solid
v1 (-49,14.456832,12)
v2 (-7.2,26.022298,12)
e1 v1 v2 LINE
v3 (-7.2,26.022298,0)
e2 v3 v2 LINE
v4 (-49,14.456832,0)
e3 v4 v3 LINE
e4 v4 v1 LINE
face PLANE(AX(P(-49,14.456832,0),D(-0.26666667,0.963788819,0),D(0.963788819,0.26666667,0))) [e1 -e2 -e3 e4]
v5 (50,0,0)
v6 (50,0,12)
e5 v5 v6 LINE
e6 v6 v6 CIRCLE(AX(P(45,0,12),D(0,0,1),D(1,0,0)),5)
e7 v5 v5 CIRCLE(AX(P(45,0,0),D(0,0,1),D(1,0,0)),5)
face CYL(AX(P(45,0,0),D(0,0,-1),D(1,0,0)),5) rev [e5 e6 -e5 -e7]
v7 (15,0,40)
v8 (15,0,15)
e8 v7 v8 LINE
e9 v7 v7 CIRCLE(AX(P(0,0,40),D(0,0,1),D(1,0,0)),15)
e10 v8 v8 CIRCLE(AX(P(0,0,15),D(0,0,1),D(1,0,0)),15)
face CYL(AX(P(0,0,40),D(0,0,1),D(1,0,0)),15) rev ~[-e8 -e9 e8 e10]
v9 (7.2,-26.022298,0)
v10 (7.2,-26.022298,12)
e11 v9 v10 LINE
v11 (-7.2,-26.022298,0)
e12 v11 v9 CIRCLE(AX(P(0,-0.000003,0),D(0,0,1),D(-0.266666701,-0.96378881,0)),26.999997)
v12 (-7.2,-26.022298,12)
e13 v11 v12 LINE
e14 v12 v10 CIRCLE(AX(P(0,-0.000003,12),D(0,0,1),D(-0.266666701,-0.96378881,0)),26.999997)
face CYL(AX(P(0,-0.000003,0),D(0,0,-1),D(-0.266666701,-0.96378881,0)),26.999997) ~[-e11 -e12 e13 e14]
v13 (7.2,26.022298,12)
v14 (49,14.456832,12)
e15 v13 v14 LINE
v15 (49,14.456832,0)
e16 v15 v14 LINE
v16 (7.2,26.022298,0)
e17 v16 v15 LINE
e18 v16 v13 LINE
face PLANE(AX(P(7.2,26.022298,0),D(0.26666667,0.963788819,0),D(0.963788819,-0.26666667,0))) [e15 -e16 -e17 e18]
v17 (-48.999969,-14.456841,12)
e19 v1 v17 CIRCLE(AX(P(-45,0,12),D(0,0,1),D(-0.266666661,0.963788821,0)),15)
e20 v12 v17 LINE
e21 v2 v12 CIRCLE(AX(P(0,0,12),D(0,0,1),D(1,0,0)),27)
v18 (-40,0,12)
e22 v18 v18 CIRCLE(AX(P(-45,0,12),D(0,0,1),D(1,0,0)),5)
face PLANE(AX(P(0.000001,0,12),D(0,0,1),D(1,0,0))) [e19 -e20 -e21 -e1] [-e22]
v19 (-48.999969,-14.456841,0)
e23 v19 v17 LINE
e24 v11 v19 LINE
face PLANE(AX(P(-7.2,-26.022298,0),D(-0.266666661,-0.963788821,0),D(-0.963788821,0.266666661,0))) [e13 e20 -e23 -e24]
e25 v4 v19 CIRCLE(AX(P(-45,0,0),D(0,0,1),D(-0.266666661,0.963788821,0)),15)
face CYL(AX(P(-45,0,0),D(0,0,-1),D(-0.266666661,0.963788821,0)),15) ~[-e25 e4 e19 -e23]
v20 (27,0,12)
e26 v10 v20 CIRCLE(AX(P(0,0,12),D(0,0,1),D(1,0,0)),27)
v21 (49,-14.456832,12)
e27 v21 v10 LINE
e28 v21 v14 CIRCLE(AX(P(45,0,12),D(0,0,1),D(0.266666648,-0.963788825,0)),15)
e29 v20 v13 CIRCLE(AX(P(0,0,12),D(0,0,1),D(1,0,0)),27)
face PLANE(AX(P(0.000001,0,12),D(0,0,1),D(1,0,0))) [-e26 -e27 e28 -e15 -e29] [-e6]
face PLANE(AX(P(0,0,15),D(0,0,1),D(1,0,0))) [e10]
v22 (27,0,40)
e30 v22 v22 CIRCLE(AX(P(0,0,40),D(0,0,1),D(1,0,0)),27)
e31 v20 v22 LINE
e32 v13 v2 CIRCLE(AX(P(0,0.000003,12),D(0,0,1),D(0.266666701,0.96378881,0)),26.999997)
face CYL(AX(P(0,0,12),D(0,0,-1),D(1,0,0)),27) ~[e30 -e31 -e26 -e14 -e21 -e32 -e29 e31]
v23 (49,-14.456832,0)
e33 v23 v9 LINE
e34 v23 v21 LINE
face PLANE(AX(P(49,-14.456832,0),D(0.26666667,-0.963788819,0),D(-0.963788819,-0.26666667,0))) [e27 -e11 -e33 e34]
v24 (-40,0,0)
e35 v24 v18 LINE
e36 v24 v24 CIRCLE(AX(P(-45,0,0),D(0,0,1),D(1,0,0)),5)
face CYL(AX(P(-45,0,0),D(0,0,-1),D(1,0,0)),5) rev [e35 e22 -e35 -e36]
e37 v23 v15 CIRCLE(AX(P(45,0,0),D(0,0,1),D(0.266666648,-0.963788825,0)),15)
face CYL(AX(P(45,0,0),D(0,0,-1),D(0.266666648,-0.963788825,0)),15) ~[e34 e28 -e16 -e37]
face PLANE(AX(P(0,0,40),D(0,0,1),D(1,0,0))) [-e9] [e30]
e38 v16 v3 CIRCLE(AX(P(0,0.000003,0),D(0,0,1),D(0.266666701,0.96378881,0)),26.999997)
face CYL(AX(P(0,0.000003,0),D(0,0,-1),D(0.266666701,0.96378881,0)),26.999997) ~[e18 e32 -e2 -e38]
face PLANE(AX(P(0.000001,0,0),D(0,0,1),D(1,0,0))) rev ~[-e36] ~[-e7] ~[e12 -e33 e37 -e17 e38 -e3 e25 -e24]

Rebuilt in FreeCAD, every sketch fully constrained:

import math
import FreeCAD as App
import Part
import Sketcher
Q = App.Units.Quantity

doc = App.newDocument("Part")
body = doc.addObject("PartDesign::Body", "Body")

# Sketch on XY plane
sketch1 = doc.addObject("Sketcher::SketchObject", "Sketch")
body.addObject(sketch1)
sketch1.AttachmentSupport = (doc.XY_Plane, [""])
sketch1.MapMode = "FlatFace"
sketch1.addGeometry([
    Part.ArcOfCircle(Part.Circle(App.Vector(0, 0, 0), App.Vector(0, 0, 1), 27), math.radians(75), math.radians(105)),  # 0
    Part.LineSegment(App.Vector(-7, 26, 0), App.Vector(-49, 14, 0)),  # 1
    Part.ArcOfCircle(Part.Circle(App.Vector(-45, 0, 0), App.Vector(0, 0, 1), 15), math.radians(105), math.radians(255)),  # 2
    Part.LineSegment(App.Vector(-49, -14, 0), App.Vector(-7, -26, 0)),  # 3
    Part.ArcOfCircle(Part.Circle(App.Vector(0, 0, 0), App.Vector(0, 0, 1), 27), math.radians(-105), math.radians(-75)),  # 4
    Part.LineSegment(App.Vector(7, -26, 0), App.Vector(49, -14, 0)),  # 5
    Part.ArcOfCircle(Part.Circle(App.Vector(45, 0, 0), App.Vector(0, 0, 1), 15), math.radians(-75), math.radians(75)),  # 6
    Part.LineSegment(App.Vector(49, 14, 0), App.Vector(7, 26, 0)),  # 7
    Part.Circle(App.Vector(-45, 0, 0), App.Vector(0, 0, 1), 5),  # 8
    Part.Circle(App.Vector(45, 0, 0), App.Vector(0, 0, 1), 5),  # 9
], False)
sketch1.addConstraint([
    Sketcher.Constraint("Tangent", 0, 2, 1, 1),
    Sketcher.Constraint("Tangent", 1, 2, 2, 1),
    Sketcher.Constraint("Coincident", 2, 2, 3, 1),
    Sketcher.Constraint("Tangent", 3, 2, 4, 1),
    Sketcher.Constraint("Tangent", 4, 2, 5, 1),
    Sketcher.Constraint("Tangent", 5, 2, 6, 1),
    Sketcher.Constraint("Tangent", 6, 2, 7, 1),
    Sketcher.Constraint("Tangent", 7, 2, 0, 1),
    Sketcher.Constraint("Coincident", 0, 3, -1, 1),
    Sketcher.Constraint("Coincident", 4, 3, -1, 1),
    Sketcher.Constraint("Coincident", 8, 3, 2, 3),
    Sketcher.Constraint("Coincident", 9, 3, 6, 3),
    Sketcher.Constraint("Equal", 0, 4),
    Sketcher.Constraint("Equal", 2, 6),
    Sketcher.Constraint("Equal", 8, 9),
    Sketcher.Constraint("Symmetric", 2, 3, 6, 3, -1, 1),
    Sketcher.Constraint("PointOnObject", 2, 3, -1),
    Sketcher.Constraint("Diameter", 8, Q("10 mm")),
    Sketcher.Constraint("Radius", 2, Q("15 mm")),
    Sketcher.Constraint("DistanceX", 2, 3, -1, 1, Q("45 mm")),
    Sketcher.Constraint("DistanceX", 1, 2, -1, 1, Q("49 mm")),
    Sketcher.Constraint("DistanceX", 2, 2, -1, 1, Q("48.999969 mm")),
])
pad1 = doc.addObject("PartDesign::Pad", "Pad")
body.addObject(pad1)
pad1.Profile = sketch1
pad1.Length = 12

# Sketch on XY plane
sketch2 = doc.addObject("Sketcher::SketchObject", "Sketch001")
body.addObject(sketch2)
sketch2.AttachmentSupport = (doc.XY_Plane, [""])
sketch2.MapMode = "FlatFace"
sketch2.AttachmentOffset = App.Placement(App.Vector(0, 0, 12), App.Rotation())
sketch2.addGeometry(Part.Circle(App.Vector(0, 0, 0), App.Vector(0, 0, 1), 27), False)
sketch2.addConstraint([
    Sketcher.Constraint("Coincident", 0, 3, -1, 1),
    Sketcher.Constraint("Diameter", 0, Q("54 mm")),
])
pad2 = doc.addObject("PartDesign::Pad", "Pad001")
body.addObject(pad2)
pad2.Profile = sketch2
pad2.Length = 28

# Sketch on XY plane
sketch3 = doc.addObject("Sketcher::SketchObject", "Sketch002")
body.addObject(sketch3)
sketch3.AttachmentSupport = (doc.XY_Plane, [""])
sketch3.MapMode = "FlatFace"
sketch3.AttachmentOffset = App.Placement(App.Vector(0, 0, 40), App.Rotation())
sketch3.addGeometry(Part.Circle(App.Vector(0, 0, 0), App.Vector(0, 0, 1), 15), False)
sketch3.addConstraint([
    Sketcher.Constraint("Coincident", 0, 3, -1, 1),
    Sketcher.Constraint("Diameter", 0, Q("30 mm")),
])
pocket1 = doc.addObject("PartDesign::Pocket", "Pocket")
body.addObject(pocket1)
pocket1.Profile = sketch3
pocket1.Length = 25

doc.recompute()
